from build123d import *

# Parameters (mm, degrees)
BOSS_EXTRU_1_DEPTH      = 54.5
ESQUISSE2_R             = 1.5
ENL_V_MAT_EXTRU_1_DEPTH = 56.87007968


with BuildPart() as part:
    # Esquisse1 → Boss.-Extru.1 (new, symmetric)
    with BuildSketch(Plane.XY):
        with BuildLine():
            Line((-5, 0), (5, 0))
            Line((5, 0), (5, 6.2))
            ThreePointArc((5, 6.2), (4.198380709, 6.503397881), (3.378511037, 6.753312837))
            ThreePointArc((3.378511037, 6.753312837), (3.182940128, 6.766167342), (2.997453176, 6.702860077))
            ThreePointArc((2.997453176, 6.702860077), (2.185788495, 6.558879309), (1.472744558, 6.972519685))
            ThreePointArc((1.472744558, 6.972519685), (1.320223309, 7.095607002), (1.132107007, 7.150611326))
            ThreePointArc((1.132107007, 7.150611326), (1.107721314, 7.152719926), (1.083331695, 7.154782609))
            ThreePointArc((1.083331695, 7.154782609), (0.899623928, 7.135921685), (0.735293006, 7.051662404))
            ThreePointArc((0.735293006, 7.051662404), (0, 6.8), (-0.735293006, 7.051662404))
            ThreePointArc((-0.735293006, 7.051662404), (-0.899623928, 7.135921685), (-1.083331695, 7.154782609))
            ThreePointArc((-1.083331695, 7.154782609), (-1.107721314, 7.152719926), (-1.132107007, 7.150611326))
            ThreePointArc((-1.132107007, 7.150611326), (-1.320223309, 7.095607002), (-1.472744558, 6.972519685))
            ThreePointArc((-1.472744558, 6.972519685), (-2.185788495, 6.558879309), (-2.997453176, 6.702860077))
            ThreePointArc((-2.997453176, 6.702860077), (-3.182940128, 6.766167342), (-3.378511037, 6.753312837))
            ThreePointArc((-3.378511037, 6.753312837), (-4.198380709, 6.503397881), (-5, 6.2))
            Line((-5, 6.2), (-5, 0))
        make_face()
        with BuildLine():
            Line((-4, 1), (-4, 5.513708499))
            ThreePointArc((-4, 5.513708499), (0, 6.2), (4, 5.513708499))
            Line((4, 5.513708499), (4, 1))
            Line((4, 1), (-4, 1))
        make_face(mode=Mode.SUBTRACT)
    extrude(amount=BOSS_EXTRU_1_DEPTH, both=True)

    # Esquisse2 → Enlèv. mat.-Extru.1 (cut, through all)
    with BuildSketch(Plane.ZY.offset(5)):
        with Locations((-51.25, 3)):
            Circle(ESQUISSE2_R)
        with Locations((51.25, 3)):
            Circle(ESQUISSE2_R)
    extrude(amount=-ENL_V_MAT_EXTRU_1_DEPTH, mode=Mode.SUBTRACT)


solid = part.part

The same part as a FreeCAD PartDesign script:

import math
import FreeCAD as App
import Part
import Sketcher

V = App.Vector

doc = App.newDocument("Part")
params = doc.addObject("Spreadsheet::Sheet", "Params")
for row, (alias, value) in enumerate([
    ("sketch1_radius", "13 mm"),
    ("sketch1_radius2", "12 mm"),
    ("sketch1_radius3", "0.5 mm"),
    ("sketch1_radius4", "1.2 mm"),
    ("sketch1_width", "10 mm"),
    ("pad1_length", "109 mm"),
    ("sketch2_diameter", "3 mm"),
], start=1):
    params.set(f"A{row}", alias)
    params.set(f"B{row}", "=" + value)
    params.setAlias(f"B{row}", alias)

body = doc.addObject("PartDesign::Body", "Body")

sketch1 = body.newObject("Sketcher::SketchObject", "Sketch")
sketch1.AttachmentSupport = (doc.getObject("XY_Plane"), [""])
sketch1.MapMode = "FlatFace"
sketch1.addGeometry(Part.LineSegment(V(-5, 0, 0), V(5, 0, 0)), False)
sketch1.addGeometry(Part.LineSegment(V(5, 0, 0), V(5, 6.2, 0)), False)
sketch1.addGeometry(Part.ArcOfCircle(Part.Circle(V(0, -5.8, 0), V(0, 0, 1), 13), math.radians(67.38), math.radians(74.94)), False)
sketch1.addGeometry(Part.ArcOfCircle(Part.Circle(V(3.249, 6.27, 0), V(0, 0, 1), 0.5), math.radians(75), math.radians(120)), False)
sketch1.addGeometry(Part.ArcOfCircle(Part.Circle(V(2.395, 7.741, 0), V(0, 0, 1), 1.2), math.radians(-140), math.radians(-60)), False)
sketch1.addGeometry(Part.ArcOfCircle(Part.Circle(V(1.089, 6.653, 0), V(0, 0, 1), 0.5), math.radians(40), math.radians(85)), False)
sketch1.addGeometry(Part.ArcOfCircle(Part.Circle(V(0, -5.8, 0), V(0, 0, 1), 13), math.radians(85), math.radians(85.22)), False)
sketch1.addGeometry(Part.ArcOfCircle(Part.Circle(V(1.042, 6.657, 0), V(0, 0, 1), 0.5), math.radians(85), math.radians(128)), False)
sketch1.addGeometry(Part.ArcOfCircle(Part.Circle(V(0, 8, 0), V(0, 0, 1), 1.2), math.radians(-128), math.radians(-52)), False)
sketch1.addGeometry(Part.ArcOfCircle(Part.Circle(V(-1.042, 6.657, 0), V(0, 0, 1), 0.5), math.radians(52), math.radians(95)), False)
sketch1.addGeometry(Part.ArcOfCircle(Part.Circle(V(0, -5.8, 0), V(0, 0, 1), 13), math.radians(94.78), math.radians(95)), False)
sketch1.addGeometry(Part.ArcOfCircle(Part.Circle(V(-1.089, 6.653, 0), V(0, 0, 1), 0.5), math.radians(95), math.radians(140)), False)
sketch1.addGeometry(Part.ArcOfCircle(Part.Circle(V(-2.395, 7.741, 0), V(0, 0, 1), 1.2), math.radians(-120), math.radians(-40)), False)
sketch1.addGeometry(Part.ArcOfCircle(Part.Circle(V(-3.249, 6.27, 0), V(0, 0, 1), 0.5), math.radians(60), math.radians(105)), False)
sketch1.addGeometry(Part.ArcOfCircle(Part.Circle(V(0, -5.8, 0), V(0, 0, 1), 13), math.radians(105.06), math.radians(112.62)), False)
sketch1.addGeometry(Part.LineSegment(V(-5, 6.2, 0), V(-5, 0, 0)), False)
sketch1.addGeometry(Part.LineSegment(V(4, 1, 0), V(-4, 1, 0)), False)
sketch1.addGeometry(Part.LineSegment(V(-4, 1, 0), V(-4, 5.514, 0)), False)
sketch1.addGeometry(Part.ArcOfCircle(Part.Circle(V(0, -5.8, 0), V(0, 0, 1), 12), math.radians(71), math.radians(109)), False)
sketch1.addGeometry(Part.LineSegment(V(4, 5.514, 0), V(4, 1, 0)), False)
sketch1.addConstraint(Sketcher.Constraint("Coincident", 0, 2, 1, 1))
sketch1.addConstraint(Sketcher.Constraint("Coincident", 1, 2, 2, 1))
sketch1.addConstraint(Sketcher.Constraint("Tangent", 2, 2, 3, 1))
sketch1.addConstraint(Sketcher.Constraint("Tangent", 3, 2, 4, 2))
sketch1.addConstraint(Sketcher.Constraint("Tangent", 4, 1, 5, 1))
sketch1.addConstraint(Sketcher.Constraint("Tangent", 5, 2, 6, 1))
sketch1.addConstraint(Sketcher.Constraint("Tangent", 6, 2, 7, 1))
sketch1.addConstraint(Sketcher.Constraint("Tangent", 7, 2, 8, 2))
sketch1.addConstraint(Sketcher.Constraint("Tangent", 8, 1, 9, 1))
sketch1.addConstraint(Sketcher.Constraint("Tangent", 9, 2, 10, 1))
sketch1.addConstraint(Sketcher.Constraint("Tangent", 10, 2, 11, 1))
sketch1.addConstraint(Sketcher.Constraint("Tangent", 11, 2, 12, 2))
sketch1.addConstraint(Sketcher.Constraint("Tangent", 12, 1, 13, 1))
sketch1.addConstraint(Sketcher.Constraint("Tangent", 13, 2, 14, 1))
sketch1.addConstraint(Sketcher.Constraint("Coincident", 14, 2, 15, 1))
sketch1.addConstraint(Sketcher.Constraint("Coincident", 15, 2, 0, 1))
sketch1.addConstraint(Sketcher.Constraint("Coincident", 16, 2, 17, 1))
sketch1.addConstraint(Sketcher.Constraint("Coincident", 17, 2, 18, 2))
sketch1.addConstraint(Sketcher.Constraint("Coincident", 18, 1, 19, 1))
sketch1.addConstraint(Sketcher.Constraint("Coincident", 19, 2, 16, 1))
sketch1.addConstraint(Sketcher.Constraint("Horizontal", 0))
sketch1.addConstraint(Sketcher.Constraint("Vertical", 1))
sketch1.addConstraint(Sketcher.Constraint("Vertical", 15))
sketch1.addConstraint(Sketcher.Constraint("Horizontal", 16))
sketch1.addConstraint(Sketcher.Constraint("Vertical", 17))
sketch1.addConstraint(Sketcher.Constraint("Vertical", 19))
sketch1.addConstraint(Sketcher.Constraint("Coincident", 14, 3, 2, 3))
sketch1.addConstraint(Sketcher.Constraint("Coincident", 18, 3, 2, 3))
sketch1.addConstraint(Sketcher.Constraint("Equal", 3, 5))
sketch1.addConstraint(Sketcher.Constraint("Equal", 5, 7))
sketch1.addConstraint(Sketcher.Constraint("Equal", 4, 8))
sketch1.addConstraint(Sketcher.Constraint("Equal", 7, 9))
sketch1.addConstraint(Sketcher.Constraint("Equal", 6, 10))
sketch1.addConstraint(Sketcher.Constraint("Equal", 9, 11))
sketch1.addConstraint(Sketcher.Constraint("Equal", 8, 12))
sketch1.addConstraint(Sketcher.Constraint("Equal", 11, 13))
sketch1.addConstraint(Sketcher.Constraint("Equal", 2, 14))
sketch1.addConstraint(Sketcher.Constraint("Symmetric", 0, 2, 15, 2, -1, 1))
sketch1.addConstraint(Sketcher.Constraint("Symmetric", 7, 3, 9, 3, -2))
sketch1.addConstraint(Sketcher.Constraint("Symmetric", 5, 3, 11, 3, -2))
sketch1.addConstraint(Sketcher.Constraint("Symmetric", 3, 3, 13, 3, -2))
sketch1.addConstraint(Sketcher.Constraint("Horizontal", 17, 2, 18, 1))
sketch1.addConstraint(Sketcher.Constraint("Radius", 2, 13.0))
sketch1.addConstraint(Sketcher.Constraint("Radius", 18, 12.0))
sketch1.addConstraint(Sketcher.Constraint("Radius", 3, 0.5))
sketch1.addConstraint(Sketcher.Constraint("Radius", 4, 1.2))
sketch1.addConstraint(Sketcher.Constraint("DistanceX", 0, 1, 0, 2, 10.0))
sketch1.addConstraint(Sketcher.Constraint("DistanceX", 16, 2, 16, 1, 8.0))
sketch1.addConstraint(Sketcher.Constraint("DistanceY", 1, 1, 1, 2, 6.2))
sketch1.addConstraint(Sketcher.Constraint("DistanceY", -1, 1, 8, 3, 8.0))
sketch1.addConstraint(Sketcher.Constraint("DistanceY", -1, 1, 16, 2, 1.0))
sketch1.addConstraint(Sketcher.Constraint("Radius", 6, 13.000201))
sketch1.addConstraint(Sketcher.Constraint("DistanceY", 6, 3, -1, 1, 5.8002))
sketch1.addConstraint(Sketcher.Constraint("DistanceX", 7, 3, 5, 3, 0.046899))
sketch1.addConstraint(Sketcher.Constraint("DistanceY", 5, 3, 2, 2, 0.100802))
sketch1.addConstraint(Sketcher.Constraint("DistanceX", -1, 1, 3, 3, 3.248568))
sketch1.setExpression("Constraints[42]", "Params.sketch1_radius")
sketch1.setExpression("Constraints[43]", "Params.sketch1_radius2")
sketch1.setExpression("Constraints[44]", "Params.sketch1_radius3")
sketch1.setExpression("Constraints[45]", "Params.sketch1_radius4")
sketch1.setExpression("Constraints[46]", "Params.sketch1_width")
pad1 = body.newObject("PartDesign::Pad", "Pad")
pad1.Profile = sketch1
pad1.setExpression("Length", "Params.pad1_length")
pad1.Midplane = True

sketch2 = body.newObject("Sketcher::SketchObject", "Sketch001")
sketch2.AttachmentSupport = (doc.getObject("YZ_Plane"), [""])
sketch2.MapMode = "FlatFace"
sketch2.AttachmentOffset = App.Placement(V(0, 0, -5), App.Rotation())
sketch2.addGeometry(Part.Circle(V(3, -51.2, 0), V(0, 0, 1), 1.5), False)
sketch2.addGeometry(Part.Circle(V(3, 51.2, 0), V(0, 0, 1), 1.5), False)
sketch2.addConstraint(Sketcher.Constraint("Equal", 0, 1))
sketch2.addConstraint(Sketcher.Constraint("Symmetric", 0, 3, 1, 3, -1))
sketch2.addConstraint(Sketcher.Constraint("Diameter", 0, 3.0))
sketch2.addConstraint(Sketcher.Constraint("DistanceX", -1, 1, 0, 3, 3.0))
sketch2.addConstraint(Sketcher.Constraint("DistanceY", 0, 3, 1, 3, 102.5))
sketch2.setExpression("Constraints[2]", "Params.sketch2_diameter")
pocket1 = body.newObject("PartDesign::Pocket", "Pocket")
pocket1.Profile = sketch2
pocket1.Type = "ThroughAll"
pocket1.Reversed = True

doc.recompute()
